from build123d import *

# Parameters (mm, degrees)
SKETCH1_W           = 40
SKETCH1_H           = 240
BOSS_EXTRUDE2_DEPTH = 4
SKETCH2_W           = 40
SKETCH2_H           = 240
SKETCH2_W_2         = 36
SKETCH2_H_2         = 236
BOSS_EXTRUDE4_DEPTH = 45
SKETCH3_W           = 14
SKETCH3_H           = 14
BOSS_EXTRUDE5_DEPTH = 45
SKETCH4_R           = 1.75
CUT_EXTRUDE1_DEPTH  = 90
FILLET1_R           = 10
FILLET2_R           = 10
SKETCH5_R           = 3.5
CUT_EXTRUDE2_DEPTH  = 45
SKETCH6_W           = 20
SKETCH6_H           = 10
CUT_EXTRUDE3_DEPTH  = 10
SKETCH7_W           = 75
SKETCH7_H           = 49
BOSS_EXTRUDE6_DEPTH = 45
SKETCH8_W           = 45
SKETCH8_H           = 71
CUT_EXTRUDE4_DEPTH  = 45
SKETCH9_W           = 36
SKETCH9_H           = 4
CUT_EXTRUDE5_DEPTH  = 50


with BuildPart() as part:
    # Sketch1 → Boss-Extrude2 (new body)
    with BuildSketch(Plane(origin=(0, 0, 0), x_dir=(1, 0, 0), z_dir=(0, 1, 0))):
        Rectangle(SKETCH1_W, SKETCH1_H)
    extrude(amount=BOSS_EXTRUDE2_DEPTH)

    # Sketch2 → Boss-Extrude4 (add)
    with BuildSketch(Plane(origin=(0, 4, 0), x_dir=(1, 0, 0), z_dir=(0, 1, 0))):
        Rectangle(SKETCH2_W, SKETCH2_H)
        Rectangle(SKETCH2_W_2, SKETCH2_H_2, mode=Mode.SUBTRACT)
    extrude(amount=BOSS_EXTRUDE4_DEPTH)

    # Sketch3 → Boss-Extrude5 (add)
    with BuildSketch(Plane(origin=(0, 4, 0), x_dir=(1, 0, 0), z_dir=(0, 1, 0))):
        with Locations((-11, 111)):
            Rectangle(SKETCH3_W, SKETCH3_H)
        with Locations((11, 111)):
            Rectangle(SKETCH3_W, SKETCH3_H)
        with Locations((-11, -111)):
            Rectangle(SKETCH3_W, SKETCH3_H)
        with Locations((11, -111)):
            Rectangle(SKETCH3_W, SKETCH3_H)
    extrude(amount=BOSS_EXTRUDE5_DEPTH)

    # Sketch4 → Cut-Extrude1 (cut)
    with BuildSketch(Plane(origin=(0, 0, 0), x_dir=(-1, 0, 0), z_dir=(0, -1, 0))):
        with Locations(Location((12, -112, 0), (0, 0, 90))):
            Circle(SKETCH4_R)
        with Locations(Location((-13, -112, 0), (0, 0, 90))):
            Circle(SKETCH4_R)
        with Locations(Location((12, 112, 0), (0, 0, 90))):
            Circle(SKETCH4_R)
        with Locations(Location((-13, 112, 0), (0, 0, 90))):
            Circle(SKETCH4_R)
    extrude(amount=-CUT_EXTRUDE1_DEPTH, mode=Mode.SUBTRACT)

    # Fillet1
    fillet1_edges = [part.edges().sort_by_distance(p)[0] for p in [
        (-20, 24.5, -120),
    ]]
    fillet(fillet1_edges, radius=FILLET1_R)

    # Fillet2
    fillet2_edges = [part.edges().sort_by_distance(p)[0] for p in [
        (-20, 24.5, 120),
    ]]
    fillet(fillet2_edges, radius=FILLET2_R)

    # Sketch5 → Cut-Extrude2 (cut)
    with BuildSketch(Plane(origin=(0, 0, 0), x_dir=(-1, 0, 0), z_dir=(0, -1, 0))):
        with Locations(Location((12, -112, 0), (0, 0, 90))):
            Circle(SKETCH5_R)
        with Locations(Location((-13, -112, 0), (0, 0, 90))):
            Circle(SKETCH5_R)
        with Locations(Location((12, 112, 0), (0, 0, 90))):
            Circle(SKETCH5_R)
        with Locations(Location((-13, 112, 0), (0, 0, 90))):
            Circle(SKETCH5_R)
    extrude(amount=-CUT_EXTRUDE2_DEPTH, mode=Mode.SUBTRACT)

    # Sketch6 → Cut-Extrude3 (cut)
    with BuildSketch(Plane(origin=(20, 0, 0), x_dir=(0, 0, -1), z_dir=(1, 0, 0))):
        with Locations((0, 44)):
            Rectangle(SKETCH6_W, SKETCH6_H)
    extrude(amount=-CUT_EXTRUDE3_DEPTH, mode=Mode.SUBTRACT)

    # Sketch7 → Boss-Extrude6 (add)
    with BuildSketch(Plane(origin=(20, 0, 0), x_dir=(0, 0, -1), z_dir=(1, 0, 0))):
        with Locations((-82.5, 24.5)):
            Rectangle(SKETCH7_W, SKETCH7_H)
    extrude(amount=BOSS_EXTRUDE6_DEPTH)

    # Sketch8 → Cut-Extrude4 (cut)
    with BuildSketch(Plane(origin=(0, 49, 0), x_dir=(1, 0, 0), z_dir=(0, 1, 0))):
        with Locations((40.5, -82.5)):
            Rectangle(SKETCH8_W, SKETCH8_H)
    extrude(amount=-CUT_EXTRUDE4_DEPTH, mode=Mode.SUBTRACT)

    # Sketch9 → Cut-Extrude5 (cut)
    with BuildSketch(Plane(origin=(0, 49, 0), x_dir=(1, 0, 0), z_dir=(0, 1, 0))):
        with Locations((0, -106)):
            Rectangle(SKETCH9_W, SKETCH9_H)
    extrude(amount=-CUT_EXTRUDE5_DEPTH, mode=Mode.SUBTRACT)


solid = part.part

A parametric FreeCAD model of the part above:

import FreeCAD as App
import Part
import Sketcher

V = App.Vector
Q = App.Units.Quantity


def edges_at(feature, points):
    """Names of the edges that pass closest to the given points."""
    edges = feature.Shape.Edges
    near = lambda p: min(range(len(edges)), key=lambda i: edges[i].distToShape(Part.Vertex(*p))[0])
    return sorted({f"Edge{near(p) + 1}" for p in points})


def add_polygon(sketch, points):
    """Adds a closed chain of lines whose ends are joined by coincident constraints."""
    first, n = sketch.GeometryCount, len(points)
    for a, b in zip(points, points[1:] + points[:1]):
        sketch.addGeometry(Part.LineSegment(App.Vector(*a, 0), App.Vector(*b, 0)), False)
    for i in range(n):
        sketch.addConstraint(Sketcher.Constraint("Coincident", first + i, 2, first + (i + 1) % n, 1))

doc = App.newDocument("Part")
body = doc.addObject("PartDesign::Body", "Body")

# Sketch on XZ plane
sketch1 = body.newObject("Sketcher::SketchObject", "Sketch")
sketch1.AttachmentSupport = (doc.getObject("XZ_Plane"), [""])
sketch1.MapMode = "FlatFace"
add_polygon(sketch1, [(-20, -120), (-20, 120), (20, 120), (20, -120)])  # lines 0-3
sketch1.addConstraint([
    Sketcher.Constraint("Vertical", 0),
    Sketcher.Constraint("Horizontal", 1),
    Sketcher.Constraint("Vertical", 2),
    Sketcher.Constraint("Horizontal", 3),
    Sketcher.Constraint("Symmetric", 0, 2, 2, 2, -1, 1),
    Sketcher.Constraint("DistanceX", 1, 1, 1, 2, Q("40 mm")),
    Sketcher.Constraint("DistanceY", 0, 1, 0, 2, Q("240 mm")),
])
pad1 = body.newObject("PartDesign::Pad", "Pad")
pad1.Profile = sketch1
pad1.Length = 4
pad1.Reversed = True

# Sketch on XZ plane
sketch2 = body.newObject("Sketcher::SketchObject", "Sketch001")
sketch2.AttachmentSupport = (doc.getObject("XZ_Plane"), [""])
sketch2.MapMode = "FlatFace"
sketch2.AttachmentOffset = App.Placement(V(0, 0, -4), App.Rotation())
add_polygon(sketch2, [(-20, -120), (-20, 120), (20, 120), (20, -120)])  # lines 0-3
add_polygon(sketch2, [(18, 118), (-18, 118), (-18, -118), (18, -118)])  # lines 4-7
sketch2.addConstraint([
    Sketcher.Constraint("Vertical", 0),
    Sketcher.Constraint("Horizontal", 1),
    Sketcher.Constraint("Vertical", 2),
    Sketcher.Constraint("Horizontal", 3),
    Sketcher.Constraint("Horizontal", 4),
    Sketcher.Constraint("Vertical", 5),
    Sketcher.Constraint("Horizontal", 6),
    Sketcher.Constraint("Vertical", 7),
    Sketcher.Constraint("Symmetric", 0, 2, 2, 2, -1, 1),
    Sketcher.Constraint("Symmetric", 4, 2, 6, 2, -1, 1),
    Sketcher.Constraint("DistanceX", 1, 1, 1, 2, Q("40 mm")),
    Sketcher.Constraint("DistanceX", 4, 2, 4, 1, Q("36 mm")),
    Sketcher.Constraint("DistanceY", 0, 1, 0, 2, Q("240 mm")),
    Sketcher.Constraint("DistanceY", 5, 2, 5, 1, Q("236 mm")),
])
pad2 = body.newObject("PartDesign::Pad", "Pad001")
pad2.Profile = sketch2
pad2.Length = 45
pad2.Reversed = True

# Sketch on XZ plane
sketch3 = body.newObject("Sketcher::SketchObject", "Sketch002")
sketch3.AttachmentSupport = (doc.getObject("XZ_Plane"), [""])
sketch3.MapMode = "FlatFace"
sketch3.AttachmentOffset = App.Placement(V(0, 0, -4), App.Rotation())
add_polygon(sketch3, [(-18, -118), (-18, -104), (-4, -104), (-4, -118)])  # lines 0-3
add_polygon(sketch3, [(4, -118), (4, -104), (18, -104), (18, -118)])  # lines 4-7
add_polygon(sketch3, [(-18, 104), (-18, 118), (-4, 118), (-4, 104)])  # lines 8-11
add_polygon(sketch3, [(4, 104), (4, 118), (18, 118), (18, 104)])  # lines 12-15
sketch3.addConstraint([
    Sketcher.Constraint("Vertical", 0),
    Sketcher.Constraint("Horizontal", 1),
    Sketcher.Constraint("Vertical", 2),
    Sketcher.Constraint("Horizontal", 3),
    Sketcher.Constraint("Vertical", 4),
    Sketcher.Constraint("Horizontal", 5),
    Sketcher.Constraint("Vertical", 6),
    Sketcher.Constraint("Horizontal", 7),
    Sketcher.Constraint("Vertical", 8),
    Sketcher.Constraint("Horizontal", 9),
    Sketcher.Constraint("Vertical", 10),
    Sketcher.Constraint("Horizontal", 11),
    Sketcher.Constraint("Vertical", 12),
    Sketcher.Constraint("Horizontal", 13),
    Sketcher.Constraint("Vertical", 14),
    Sketcher.Constraint("Horizontal", 15),
    Sketcher.Constraint("Symmetric", 6, 2, 8, 2, -1, 1),
    Sketcher.Constraint("Symmetric", 4, 2, 10, 2, -1, 1),
    Sketcher.Constraint("Symmetric", 2, 2, 12, 2, -1, 1),
    Sketcher.Constraint("Symmetric", 0, 2, 14, 2, -1, 1),
    Sketcher.Constraint("Symmetric", 1, 2, 4, 2, -2),
    Sketcher.Constraint("Symmetric", 3, 2, 6, 2, -2),
    Sketcher.Constraint("Equal", 15, 0),
    Sketcher.Constraint("DistanceX", 1, 1, 1, 2, Q("14 mm")),
    Sketcher.Constraint("DistanceX", 0, 2, -1, 1, Q("18 mm")),
    Sketcher.Constraint("DistanceY", 0, 2, -1, 1, Q("104 mm")),
])
pad3 = body.newObject("PartDesign::Pad", "Pad002")
pad3.Profile = sketch3
pad3.Length = 45
pad3.Reversed = True

# Sketch on XZ plane
sketch4 = body.newObject("Sketcher::SketchObject", "Sketch003")
sketch4.AttachmentSupport = (doc.getObject("XZ_Plane"), [""])
sketch4.MapMode = "FlatFace"
sketch4.addGeometry([
    Part.Circle(V(-12, 112, 0), V(0, 0, 1), 1.8),
    Part.Circle(V(13, 112, 0), V(0, 0, 1), 1.8),
    Part.Circle(V(-12, -112, 0), V(0, 0, 1), 1.8),
    Part.Circle(V(13, -112, 0), V(0, 0, 1), 1.8),
], False)
sketch4.addConstraint([
    Sketcher.Constraint("Equal", 0, 1),
    Sketcher.Constraint("Equal", 1, 2),
    Sketcher.Constraint("Equal", 2, 3),
    Sketcher.Constraint("Symmetric", 0, 3, 2, 3, -1),
    Sketcher.Constraint("Symmetric", 1, 3, 3, 3, -1),
    Sketcher.Constraint("Horizontal", 0, 3, 1, 3),
    Sketcher.Constraint("Diameter", 0, Q("3.5 mm")),
    Sketcher.Constraint("DistanceX", 0, 3, -1, 1, Q("12 mm")),
    Sketcher.Constraint("DistanceY", -1, 1, 0, 3, Q("112 mm")),
    Sketcher.Constraint("DistanceX", -1, 1, 1, 3, Q("13 mm")),
])
pocket1 = body.newObject("PartDesign::Pocket", "Pocket")
pocket1.Profile = sketch4
pocket1.Length = 90
doc.recompute()

fillet = body.newObject("PartDesign::Fillet", "Fillet")
fillet.Base = (pocket1, edges_at(pocket1, [(-20, 24.5, -120)]))
fillet.Radius = 10
doc.recompute()

fillet2 = body.newObject("PartDesign::Fillet", "Fillet001")
fillet2.Base = (fillet, edges_at(fillet, [(-20, 24.5, 120)]))
fillet2.Radius = 10

# Sketch on XZ plane
sketch5 = body.newObject("Sketcher::SketchObject", "Sketch004")
sketch5.AttachmentSupport = (doc.getObject("XZ_Plane"), [""])
sketch5.MapMode = "FlatFace"
sketch5.addGeometry([
    Part.Circle(V(-12, 112, 0), V(0, 0, 1), 3.5),
    Part.Circle(V(13, 112, 0), V(0, 0, 1), 3.5),
    Part.Circle(V(-12, -112, 0), V(0, 0, 1), 3.5),
    Part.Circle(V(13, -112, 0), V(0, 0, 1), 3.5),
], False)
sketch5.addConstraint([
    Sketcher.Constraint("Equal", 0, 1),
    Sketcher.Constraint("Equal", 1, 2),
    Sketcher.Constraint("Equal", 2, 3),
    Sketcher.Constraint("Symmetric", 0, 3, 2, 3, -1),
    Sketcher.Constraint("Symmetric", 1, 3, 3, 3, -1),
    Sketcher.Constraint("Horizontal", 0, 3, 1, 3),
    Sketcher.Constraint("Diameter", 0, Q("7 mm")),
    Sketcher.Constraint("DistanceX", 0, 3, -1, 1, Q("12 mm")),
    Sketcher.Constraint("DistanceY", -1, 1, 0, 3, Q("112 mm")),
    Sketcher.Constraint("DistanceX", -1, 1, 1, 3, Q("13 mm")),
])
pocket2 = body.newObject("PartDesign::Pocket", "Pocket001")
pocket2.Profile = sketch5
pocket2.Length = 45

# Sketch on YZ plane
sketch6 = body.newObject("Sketcher::SketchObject", "Sketch005")
sketch6.AttachmentSupport = (doc.getObject("YZ_Plane"), [""])
sketch6.MapMode = "FlatFace"
sketch6.AttachmentOffset = App.Placement(V(0, 0, 20), App.Rotation())
add_polygon(sketch6, [(49, 10), (39, 10), (39, -10), (49, -10)])  # lines 0-3
sketch6.addConstraint([
    Sketcher.Constraint("Horizontal", 0),
    Sketcher.Constraint("Vertical", 1),
    Sketcher.Constraint("Horizontal", 2),
    Sketcher.Constraint("Vertical", 3),
    Sketcher.Constraint("DistanceX", 0, 2, 0, 1, Q("10 mm")),
    Sketcher.Constraint("DistanceY", 1, 2, 1, 1, Q("20 mm")),
    Sketcher.Constraint("DistanceX", -1, 1, 0, 2, Q("39 mm")),
    Sketcher.Constraint("DistanceY", -1, 1, 0, 2, Q("10 mm")),
])
pocket3 = body.newObject("PartDesign::Pocket", "Pocket002")
pocket3.Profile = sketch6
pocket3.Length = 10

# Sketch on YZ plane
sketch7 = body.newObject("Sketcher::SketchObject", "Sketch006")
sketch7.AttachmentSupport = (doc.getObject("YZ_Plane"), [""])
sketch7.MapMode = "FlatFace"
sketch7.AttachmentOffset = App.Placement(V(0, 0, 20), App.Rotation())
add_polygon(sketch7, [(49, 120), (0, 120), (0, 45), (49, 45)])  # lines 0-3
sketch7.addConstraint([
    Sketcher.Constraint("Horizontal", 0),
    Sketcher.Constraint("Vertical", 1),
    Sketcher.Constraint("Horizontal", 2),
    Sketcher.Constraint("Vertical", 3),
    Sketcher.Constraint("PointOnObject", 0, 2, -2),
    Sketcher.Constraint("DistanceX", 0, 2, 0, 1, Q("49 mm")),
    Sketcher.Constraint("DistanceY", 1, 2, 1, 1, Q("75 mm")),
    Sketcher.Constraint("DistanceY", -1, 1, 0, 2, Q("120 mm")),
])
pad4 = body.newObject("PartDesign::Pad", "Pad003")
pad4.Profile = sketch7
pad4.Length = 45

# Sketch on XZ plane
sketch8 = body.newObject("Sketcher::SketchObject", "Sketch007")
sketch8.AttachmentSupport = (doc.getObject("XZ_Plane"), [""])
sketch8.MapMode = "FlatFace"
sketch8.AttachmentOffset = App.Placement(V(0, 0, -49), App.Rotation())
add_polygon(sketch8, [(18, 47), (18, 118), (63, 118), (63, 47)])  # lines 0-3
sketch8.addConstraint([
    Sketcher.Constraint("Vertical", 0),
    Sketcher.Constraint("Horizontal", 1),
    Sketcher.Constraint("Vertical", 2),
    Sketcher.Constraint("Horizontal", 3),
    Sketcher.Constraint("DistanceX", 1, 1, 1, 2, Q("45 mm")),
    Sketcher.Constraint("DistanceY", 0, 1, 0, 2, Q("71 mm")),
    Sketcher.Constraint("DistanceX", -1, 1, 0, 2, Q("18 mm")),
    Sketcher.Constraint("DistanceY", -1, 1, 0, 2, Q("118 mm")),
])
pocket4 = body.newObject("PartDesign::Pocket", "Pocket003")
pocket4.Profile = sketch8
pocket4.Length = 45
pocket4.Reversed = True

# Sketch on XZ plane
sketch9 = body.newObject("Sketcher::SketchObject", "Sketch008")
sketch9.AttachmentSupport = (doc.getObject("XZ_Plane"), [""])
sketch9.MapMode = "FlatFace"
sketch9.AttachmentOffset = App.Placement(V(0, 0, -49), App.Rotation())
add_polygon(sketch9, [(-18, 104), (-18, 108), (18, 108), (18, 104)])  # lines 0-3
sketch9.addConstraint([
    Sketcher.Constraint("Vertical", 0),
    Sketcher.Constraint("Horizontal", 1),
    Sketcher.Constraint("Vertical", 2),
    Sketcher.Constraint("Horizontal", 3),
    Sketcher.Constraint("DistanceX", 1, 1, 1, 2, Q("36 mm")),
    Sketcher.Constraint("DistanceY", 0, 1, 0, 2, Q("4 mm")),
    Sketcher.Constraint("DistanceX", 0, 2, -1, 1, Q("18 mm")),
    Sketcher.Constraint("DistanceY", -1, 1, 0, 2, Q("108 mm")),
])
pocket5 = body.newObject("PartDesign::Pocket", "Pocket004")
pocket5.Profile = sketch9
pocket5.Length = 50
pocket5.Reversed = True

doc.recompute()
